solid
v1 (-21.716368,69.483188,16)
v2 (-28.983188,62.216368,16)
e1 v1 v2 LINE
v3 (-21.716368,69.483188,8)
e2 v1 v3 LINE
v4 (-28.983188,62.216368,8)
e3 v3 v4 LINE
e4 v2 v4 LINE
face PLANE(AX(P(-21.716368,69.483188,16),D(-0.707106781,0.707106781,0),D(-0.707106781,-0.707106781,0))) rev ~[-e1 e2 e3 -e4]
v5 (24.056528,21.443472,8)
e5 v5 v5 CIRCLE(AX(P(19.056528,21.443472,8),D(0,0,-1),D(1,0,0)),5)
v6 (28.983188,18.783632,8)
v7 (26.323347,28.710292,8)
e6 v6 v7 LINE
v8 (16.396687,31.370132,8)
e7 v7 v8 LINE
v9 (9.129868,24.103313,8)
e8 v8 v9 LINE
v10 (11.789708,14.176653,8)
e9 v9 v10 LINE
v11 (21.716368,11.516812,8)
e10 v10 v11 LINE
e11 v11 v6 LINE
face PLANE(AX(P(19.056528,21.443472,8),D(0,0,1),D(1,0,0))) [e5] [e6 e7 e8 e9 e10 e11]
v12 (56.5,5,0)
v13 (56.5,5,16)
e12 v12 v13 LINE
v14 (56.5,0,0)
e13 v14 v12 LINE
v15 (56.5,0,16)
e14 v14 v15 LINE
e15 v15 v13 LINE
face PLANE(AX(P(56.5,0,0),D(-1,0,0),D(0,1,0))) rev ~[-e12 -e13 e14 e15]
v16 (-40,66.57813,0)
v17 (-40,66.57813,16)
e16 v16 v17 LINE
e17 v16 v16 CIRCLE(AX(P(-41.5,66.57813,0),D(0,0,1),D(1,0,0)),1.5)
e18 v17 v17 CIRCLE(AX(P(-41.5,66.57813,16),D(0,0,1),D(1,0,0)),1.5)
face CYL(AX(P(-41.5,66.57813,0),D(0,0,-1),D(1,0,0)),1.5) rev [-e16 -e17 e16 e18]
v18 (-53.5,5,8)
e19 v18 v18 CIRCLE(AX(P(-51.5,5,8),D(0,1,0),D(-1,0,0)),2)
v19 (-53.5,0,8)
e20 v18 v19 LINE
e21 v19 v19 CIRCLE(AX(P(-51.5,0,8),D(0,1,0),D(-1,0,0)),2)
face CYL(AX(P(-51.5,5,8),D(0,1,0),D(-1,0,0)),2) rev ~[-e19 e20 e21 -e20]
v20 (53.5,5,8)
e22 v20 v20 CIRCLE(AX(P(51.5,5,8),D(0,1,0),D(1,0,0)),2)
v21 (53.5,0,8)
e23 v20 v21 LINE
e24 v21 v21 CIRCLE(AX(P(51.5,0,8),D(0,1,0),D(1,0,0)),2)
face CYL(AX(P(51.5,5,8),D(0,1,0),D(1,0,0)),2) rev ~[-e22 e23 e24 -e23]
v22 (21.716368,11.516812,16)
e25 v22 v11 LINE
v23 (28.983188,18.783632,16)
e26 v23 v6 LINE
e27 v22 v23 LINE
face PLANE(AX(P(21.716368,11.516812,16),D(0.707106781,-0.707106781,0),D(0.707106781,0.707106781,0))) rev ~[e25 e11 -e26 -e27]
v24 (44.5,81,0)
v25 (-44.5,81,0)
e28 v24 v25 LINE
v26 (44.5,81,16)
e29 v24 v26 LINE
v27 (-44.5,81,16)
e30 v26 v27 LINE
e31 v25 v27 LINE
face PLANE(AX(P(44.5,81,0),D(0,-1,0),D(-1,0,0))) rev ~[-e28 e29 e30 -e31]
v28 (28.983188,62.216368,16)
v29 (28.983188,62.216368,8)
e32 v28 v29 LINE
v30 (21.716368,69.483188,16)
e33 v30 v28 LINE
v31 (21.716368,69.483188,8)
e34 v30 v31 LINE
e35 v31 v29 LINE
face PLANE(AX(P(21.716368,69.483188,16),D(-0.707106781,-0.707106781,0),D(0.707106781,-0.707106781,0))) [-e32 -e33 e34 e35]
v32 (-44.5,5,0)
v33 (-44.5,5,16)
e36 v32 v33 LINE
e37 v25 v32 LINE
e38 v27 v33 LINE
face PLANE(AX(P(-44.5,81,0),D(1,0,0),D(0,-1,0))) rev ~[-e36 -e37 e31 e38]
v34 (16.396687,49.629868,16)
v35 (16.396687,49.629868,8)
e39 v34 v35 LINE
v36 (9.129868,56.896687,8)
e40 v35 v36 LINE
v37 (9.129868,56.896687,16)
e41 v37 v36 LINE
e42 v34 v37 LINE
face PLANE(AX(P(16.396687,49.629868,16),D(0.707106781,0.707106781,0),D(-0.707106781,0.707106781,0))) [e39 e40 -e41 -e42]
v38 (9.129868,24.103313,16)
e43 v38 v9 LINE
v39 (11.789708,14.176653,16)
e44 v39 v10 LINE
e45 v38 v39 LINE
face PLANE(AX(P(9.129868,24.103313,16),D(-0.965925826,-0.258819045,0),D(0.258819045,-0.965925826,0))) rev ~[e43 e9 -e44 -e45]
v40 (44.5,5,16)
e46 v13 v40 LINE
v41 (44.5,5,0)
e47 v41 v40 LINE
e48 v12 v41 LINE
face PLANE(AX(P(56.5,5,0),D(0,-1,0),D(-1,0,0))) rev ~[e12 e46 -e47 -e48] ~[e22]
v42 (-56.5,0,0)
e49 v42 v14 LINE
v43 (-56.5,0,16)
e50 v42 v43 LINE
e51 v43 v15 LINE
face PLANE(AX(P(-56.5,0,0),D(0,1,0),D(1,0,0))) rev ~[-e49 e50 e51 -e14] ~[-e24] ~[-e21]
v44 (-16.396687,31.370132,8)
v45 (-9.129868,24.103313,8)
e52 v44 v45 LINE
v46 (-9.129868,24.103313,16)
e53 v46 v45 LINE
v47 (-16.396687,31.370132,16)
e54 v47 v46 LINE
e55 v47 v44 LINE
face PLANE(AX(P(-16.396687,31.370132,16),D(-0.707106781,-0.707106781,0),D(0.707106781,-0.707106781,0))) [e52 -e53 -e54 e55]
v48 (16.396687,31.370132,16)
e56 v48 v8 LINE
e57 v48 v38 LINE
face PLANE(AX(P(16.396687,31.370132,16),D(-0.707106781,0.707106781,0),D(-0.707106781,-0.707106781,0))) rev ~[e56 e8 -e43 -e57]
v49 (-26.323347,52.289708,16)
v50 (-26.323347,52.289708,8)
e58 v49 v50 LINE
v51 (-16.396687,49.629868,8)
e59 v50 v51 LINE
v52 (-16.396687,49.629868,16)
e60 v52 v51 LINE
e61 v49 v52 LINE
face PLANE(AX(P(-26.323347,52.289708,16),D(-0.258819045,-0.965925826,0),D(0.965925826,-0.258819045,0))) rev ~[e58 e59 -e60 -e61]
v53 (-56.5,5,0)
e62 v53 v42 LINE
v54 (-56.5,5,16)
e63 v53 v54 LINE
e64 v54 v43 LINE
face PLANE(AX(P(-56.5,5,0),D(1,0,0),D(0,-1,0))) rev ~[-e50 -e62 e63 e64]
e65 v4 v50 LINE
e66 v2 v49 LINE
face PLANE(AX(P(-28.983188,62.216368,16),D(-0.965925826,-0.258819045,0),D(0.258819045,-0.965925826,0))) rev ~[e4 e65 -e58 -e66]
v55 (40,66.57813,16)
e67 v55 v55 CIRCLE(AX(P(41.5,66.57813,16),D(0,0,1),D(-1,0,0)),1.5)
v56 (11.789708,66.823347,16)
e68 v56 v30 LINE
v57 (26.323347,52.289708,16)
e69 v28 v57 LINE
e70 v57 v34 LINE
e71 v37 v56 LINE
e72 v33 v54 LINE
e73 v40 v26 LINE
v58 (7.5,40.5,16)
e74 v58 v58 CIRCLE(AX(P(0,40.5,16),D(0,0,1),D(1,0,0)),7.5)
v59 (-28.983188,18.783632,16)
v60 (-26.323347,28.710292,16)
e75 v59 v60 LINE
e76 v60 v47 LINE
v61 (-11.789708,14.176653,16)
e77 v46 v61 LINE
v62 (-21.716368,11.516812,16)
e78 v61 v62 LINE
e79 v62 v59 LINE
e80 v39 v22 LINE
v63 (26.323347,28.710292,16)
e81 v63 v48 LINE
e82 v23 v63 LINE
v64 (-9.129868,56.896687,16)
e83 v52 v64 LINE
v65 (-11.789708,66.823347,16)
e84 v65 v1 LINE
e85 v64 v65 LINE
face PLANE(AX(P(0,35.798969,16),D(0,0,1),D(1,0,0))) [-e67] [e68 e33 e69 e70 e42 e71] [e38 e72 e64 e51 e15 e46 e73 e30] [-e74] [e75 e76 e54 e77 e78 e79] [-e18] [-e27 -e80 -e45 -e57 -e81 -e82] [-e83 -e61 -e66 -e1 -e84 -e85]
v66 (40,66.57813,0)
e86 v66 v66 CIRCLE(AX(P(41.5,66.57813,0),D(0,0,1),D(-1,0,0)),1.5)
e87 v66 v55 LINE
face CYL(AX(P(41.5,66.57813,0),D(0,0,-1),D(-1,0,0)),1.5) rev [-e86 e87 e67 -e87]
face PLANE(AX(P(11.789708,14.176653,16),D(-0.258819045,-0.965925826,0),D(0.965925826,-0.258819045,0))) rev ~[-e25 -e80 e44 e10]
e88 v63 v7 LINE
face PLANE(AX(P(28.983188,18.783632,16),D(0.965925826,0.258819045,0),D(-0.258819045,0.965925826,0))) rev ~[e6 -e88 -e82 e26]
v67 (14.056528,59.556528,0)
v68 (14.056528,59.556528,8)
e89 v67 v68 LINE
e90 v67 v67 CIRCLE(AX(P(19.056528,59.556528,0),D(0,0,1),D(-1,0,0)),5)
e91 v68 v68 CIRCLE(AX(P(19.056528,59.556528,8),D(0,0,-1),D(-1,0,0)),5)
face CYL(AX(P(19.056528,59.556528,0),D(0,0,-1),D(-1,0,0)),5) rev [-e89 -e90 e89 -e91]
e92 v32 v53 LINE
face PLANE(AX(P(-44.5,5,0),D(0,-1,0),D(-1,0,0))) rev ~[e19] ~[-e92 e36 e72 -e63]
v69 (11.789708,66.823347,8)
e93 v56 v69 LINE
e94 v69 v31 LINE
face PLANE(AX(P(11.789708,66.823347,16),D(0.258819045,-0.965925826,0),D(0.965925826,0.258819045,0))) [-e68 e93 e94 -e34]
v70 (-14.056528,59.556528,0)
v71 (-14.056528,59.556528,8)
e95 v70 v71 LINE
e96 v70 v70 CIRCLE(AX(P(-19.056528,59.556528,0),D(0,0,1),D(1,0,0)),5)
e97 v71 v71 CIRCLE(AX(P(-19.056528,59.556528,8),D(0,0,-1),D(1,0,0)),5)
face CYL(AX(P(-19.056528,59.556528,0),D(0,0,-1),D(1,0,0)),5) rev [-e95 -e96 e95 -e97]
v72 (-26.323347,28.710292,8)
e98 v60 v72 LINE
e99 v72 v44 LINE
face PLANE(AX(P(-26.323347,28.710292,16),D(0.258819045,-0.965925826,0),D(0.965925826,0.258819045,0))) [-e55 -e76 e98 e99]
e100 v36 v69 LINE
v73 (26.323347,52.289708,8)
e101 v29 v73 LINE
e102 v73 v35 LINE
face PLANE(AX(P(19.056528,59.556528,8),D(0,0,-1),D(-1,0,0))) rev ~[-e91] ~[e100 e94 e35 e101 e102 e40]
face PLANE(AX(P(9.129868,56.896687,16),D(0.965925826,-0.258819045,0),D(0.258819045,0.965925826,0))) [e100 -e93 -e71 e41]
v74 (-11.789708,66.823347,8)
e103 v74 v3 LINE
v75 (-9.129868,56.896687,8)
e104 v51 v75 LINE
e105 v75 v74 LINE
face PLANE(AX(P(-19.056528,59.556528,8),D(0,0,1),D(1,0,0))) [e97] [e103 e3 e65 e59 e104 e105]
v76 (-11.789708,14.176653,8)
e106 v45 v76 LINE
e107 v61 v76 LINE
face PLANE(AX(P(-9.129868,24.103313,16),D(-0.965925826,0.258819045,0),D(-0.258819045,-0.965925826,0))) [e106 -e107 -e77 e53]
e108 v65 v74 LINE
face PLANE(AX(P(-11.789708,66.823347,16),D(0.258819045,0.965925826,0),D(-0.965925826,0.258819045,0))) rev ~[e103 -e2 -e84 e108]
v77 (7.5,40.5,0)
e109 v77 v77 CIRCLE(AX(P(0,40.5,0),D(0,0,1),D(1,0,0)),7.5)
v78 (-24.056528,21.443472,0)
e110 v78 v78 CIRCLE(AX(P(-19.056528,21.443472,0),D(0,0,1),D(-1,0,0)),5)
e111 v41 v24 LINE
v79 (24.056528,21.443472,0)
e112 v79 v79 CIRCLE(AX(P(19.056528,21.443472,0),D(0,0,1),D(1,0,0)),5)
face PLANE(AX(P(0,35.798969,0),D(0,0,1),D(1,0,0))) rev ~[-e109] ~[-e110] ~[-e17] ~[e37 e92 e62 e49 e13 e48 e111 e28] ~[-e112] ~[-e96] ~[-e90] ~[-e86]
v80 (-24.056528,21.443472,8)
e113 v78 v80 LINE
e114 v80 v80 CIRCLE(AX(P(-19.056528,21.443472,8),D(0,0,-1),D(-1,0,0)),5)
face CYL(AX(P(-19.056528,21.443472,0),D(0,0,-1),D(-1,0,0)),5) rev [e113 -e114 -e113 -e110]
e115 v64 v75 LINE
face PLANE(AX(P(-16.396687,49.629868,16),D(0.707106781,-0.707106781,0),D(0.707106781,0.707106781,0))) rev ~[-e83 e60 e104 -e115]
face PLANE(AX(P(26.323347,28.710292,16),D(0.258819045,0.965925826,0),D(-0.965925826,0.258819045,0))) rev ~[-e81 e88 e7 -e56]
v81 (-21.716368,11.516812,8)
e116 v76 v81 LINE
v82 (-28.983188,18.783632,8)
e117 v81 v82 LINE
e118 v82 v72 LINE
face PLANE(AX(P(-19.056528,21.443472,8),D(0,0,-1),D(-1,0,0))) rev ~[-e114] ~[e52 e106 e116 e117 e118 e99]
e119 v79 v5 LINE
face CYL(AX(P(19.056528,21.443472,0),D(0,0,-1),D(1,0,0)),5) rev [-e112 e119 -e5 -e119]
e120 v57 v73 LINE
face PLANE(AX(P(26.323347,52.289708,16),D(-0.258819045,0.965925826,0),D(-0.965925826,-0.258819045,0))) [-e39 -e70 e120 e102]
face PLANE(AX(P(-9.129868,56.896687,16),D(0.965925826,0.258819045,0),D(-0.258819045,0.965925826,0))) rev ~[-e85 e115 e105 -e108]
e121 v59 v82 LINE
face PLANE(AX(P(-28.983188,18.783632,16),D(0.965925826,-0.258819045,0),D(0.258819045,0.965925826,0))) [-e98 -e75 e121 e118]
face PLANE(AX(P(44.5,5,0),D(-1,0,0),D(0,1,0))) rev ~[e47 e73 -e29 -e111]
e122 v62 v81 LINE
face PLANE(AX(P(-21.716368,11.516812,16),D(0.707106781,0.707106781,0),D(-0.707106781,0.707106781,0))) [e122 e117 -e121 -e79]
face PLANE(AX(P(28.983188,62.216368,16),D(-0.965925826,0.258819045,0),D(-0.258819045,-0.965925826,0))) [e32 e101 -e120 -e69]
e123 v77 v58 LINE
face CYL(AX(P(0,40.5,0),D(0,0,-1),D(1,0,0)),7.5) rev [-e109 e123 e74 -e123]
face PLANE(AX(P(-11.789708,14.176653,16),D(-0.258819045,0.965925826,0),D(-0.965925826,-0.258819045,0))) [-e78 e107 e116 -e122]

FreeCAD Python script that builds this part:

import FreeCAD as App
import Part
import Sketcher
from FreeCAD import Vector
Q = App.Units.Quantity

doc = App.newDocument("Part")
body = doc.addObject("PartDesign::Body", "Body")

# Sketch on XY plane
sketch1 = body.newObject("Sketcher::SketchObject", "Sketch")
sketch1.AttachmentSupport = (doc.getObject("XY_Plane"), [""])
sketch1.MapMode = "FlatFace"
sketch1.addGeometry(Part.LineSegment(Vector(-56.5, 0, 0), Vector(56.5, 0, 0)), False)
sketch1.addGeometry(Part.LineSegment(Vector(56.5, 0, 0), Vector(56.5, 5, 0)), False)
sketch1.addGeometry(Part.LineSegment(Vector(56.5, 5, 0), Vector(44.5, 5, 0)), False)
sketch1.addGeometry(Part.LineSegment(Vector(44.5, 5, 0), Vector(44.5, 81, 0)), False)
sketch1.addGeometry(Part.LineSegment(Vector(44.5, 81, 0), Vector(-44.5, 81, 0)), False)
sketch1.addGeometry(Part.LineSegment(Vector(-44.5, 81, 0), Vector(-44.5, 5, 0)), False)
sketch1.addGeometry(Part.LineSegment(Vector(-44.5, 5, 0), Vector(-56.5, 5, 0)), False)
sketch1.addGeometry(Part.LineSegment(Vector(-56.5, 5, 0), Vector(-56.5, 0, 0)), False)
sketch1.addGeometry(Part.Circle(Vector(-19.056528, 21.443472, 0), Vector(0, 0, 1), 5), False)
sketch1.addGeometry(Part.Circle(Vector(19.056528, 21.443472, 0), Vector(0, 0, 1), 5), False)
sketch1.addGeometry(Part.Circle(Vector(0, 40.5, 0), Vector(0, 0, 1), 7.5), False)
sketch1.addGeometry(Part.Circle(Vector(-41.5, 66.57813, 0), Vector(0, 0, 1), 1.5), False)
sketch1.addGeometry(Part.Circle(Vector(-19.056528, 59.556528, 0), Vector(0, 0, 1), 5), False)
sketch1.addGeometry(Part.Circle(Vector(19.056528, 59.556528, 0), Vector(0, 0, 1), 5), False)
sketch1.addGeometry(Part.Circle(Vector(41.5, 66.57813, 0), Vector(0, 0, 1), 1.5), False)
sketch1.addConstraint(Sketcher.Constraint("Coincident", 0, 2, 1, 1))
sketch1.addConstraint(Sketcher.Constraint("Coincident", 1, 2, 2, 1))
sketch1.addConstraint(Sketcher.Constraint("Coincident", 2, 2, 3, 1))
sketch1.addConstraint(Sketcher.Constraint("Coincident", 3, 2, 4, 1))
sketch1.addConstraint(Sketcher.Constraint("Coincident", 4, 2, 5, 1))
sketch1.addConstraint(Sketcher.Constraint("Coincident", 5, 2, 6, 1))
sketch1.addConstraint(Sketcher.Constraint("Coincident", 6, 2, 7, 1))
sketch1.addConstraint(Sketcher.Constraint("Coincident", 7, 2, 0, 1))
sketch1.addConstraint(Sketcher.Constraint("Horizontal", 0))
sketch1.addConstraint(Sketcher.Constraint("Vertical", 1))
sketch1.addConstraint(Sketcher.Constraint("Horizontal", 2))
sketch1.addConstraint(Sketcher.Constraint("Vertical", 3))
sketch1.addConstraint(Sketcher.Constraint("Horizontal", 4))
sketch1.addConstraint(Sketcher.Constraint("Vertical", 5))
sketch1.addConstraint(Sketcher.Constraint("Horizontal", 6))
sketch1.addConstraint(Sketcher.Constraint("Vertical", 7))
sketch1.addConstraint(Sketcher.Constraint("Equal", 8, 9))
sketch1.addConstraint(Sketcher.Constraint("Equal", 9, 12))
sketch1.addConstraint(Sketcher.Constraint("Equal", 12, 13))
sketch1.addConstraint(Sketcher.Constraint("Equal", 11, 14))
sketch1.addConstraint(Sketcher.Constraint("Symmetric", 0, 2, 7, 2, -1, 1))
sketch1.addConstraint(Sketcher.Constraint("Symmetric", 8, 3, 9, 3, -2))
sketch1.addConstraint(Sketcher.Constraint("Symmetric", 12, 3, 13, 3, -2))
sketch1.addConstraint(Sketcher.Constraint("Symmetric", 11, 3, 14, 3, -2))
sketch1.addConstraint(Sketcher.Constraint("Symmetric", 2, 2, 5, 2, -2))
sketch1.addConstraint(Sketcher.Constraint("PointOnObject", 10, 3, -2))
sketch1.addConstraint(Sketcher.Constraint("Vertical", 8, 3, 12, 3))
sketch1.addConstraint(Sketcher.Constraint("Diameter", 8, Q("10 mm")))
sketch1.addConstraint(Sketcher.Constraint("Diameter", 10, Q("15 mm")))
sketch1.addConstraint(Sketcher.Constraint("Diameter", 11, Q("3 mm")))
sketch1.addConstraint(Sketcher.Constraint("DistanceX", 0, 1, 0, 2, Q("113 mm")))
sketch1.addConstraint(Sketcher.Constraint("DistanceX", 2, 2, 2, 1, Q("12 mm")))
sketch1.addConstraint(Sketcher.Constraint("DistanceY", 1, 1, 1, 2, Q("5 mm")))
sketch1.addConstraint(Sketcher.Constraint("DistanceY", 3, 1, 3, 2, Q("76 mm")))
sketch1.addConstraint(Sketcher.Constraint("DistanceX", 14, 3, 0, 2, Q("15 mm")))
sketch1.addConstraint(Sketcher.Constraint("DistanceY", -1, 1, 10, 3, Q("40.5 mm")))
sketch1.addConstraint(Sketcher.Constraint("DistanceY", -1, 1, 11, 3, Q("66.57813 mm")))
sketch1.addConstraint(Sketcher.Constraint("DistanceY", 8, 3, 11, 3, Q("45.134658 mm")))
sketch1.addConstraint(Sketcher.Constraint("DistanceX", 8, 3, -1, 1, Q("19.056528 mm")))
sketch1.addConstraint(Sketcher.Constraint("DistanceY", -1, 1, 12, 3, Q("59.556528 mm")))
pad1 = body.newObject("PartDesign::Pad", "Pad")
pad1.Profile = sketch1
pad1.Length = 16

# Sketch on XZ plane
sketch2 = body.newObject("Sketcher::SketchObject", "Sketch001")
sketch2.AttachmentSupport = (doc.getObject("XZ_Plane"), [""])
sketch2.MapMode = "FlatFace"
sketch2.AttachmentOffset = App.Placement(Vector(0, 0, -5), App.Rotation())
sketch2.addGeometry(Part.Circle(Vector(-51.5, 8, 0), Vector(0, 0, 1), 2), False)
sketch2.addGeometry(Part.Circle(Vector(51.5, 8, 0), Vector(0, 0, 1), 2), False)
sketch2.addConstraint(Sketcher.Constraint("Equal", 0, 1))
sketch2.addConstraint(Sketcher.Constraint("Symmetric", 0, 3, 1, 3, -2))
sketch2.addConstraint(Sketcher.Constraint("Diameter", 0, Q("4 mm")))
sketch2.addConstraint(Sketcher.Constraint("DistanceY", -1, 1, 0, 3, Q("8 mm")))
sketch2.addConstraint(Sketcher.Constraint("DistanceX", 0, 3, 1, 3, Q("103 mm")))
pocket1 = body.newObject("PartDesign::Pocket", "Pocket")
pocket1.Profile = sketch2
pocket1.Type = "ThroughAll"
pocket1.Reversed = True

# Sketch on XY plane
sketch3 = body.newObject("Sketcher::SketchObject", "Sketch002")
sketch3.AttachmentSupport = (doc.getObject("XY_Plane"), [""])
sketch3.MapMode = "FlatFace"
sketch3.AttachmentOffset = App.Placement(Vector(0, 0, 16), App.Rotation())
sketch3.addGeometry(Part.LineSegment(Vector(-21.716368, 69.483188, 0), Vector(-28.983188, 62.216368, 0)), False)
sketch3.addGeometry(Part.LineSegment(Vector(-28.983188, 62.216368, 0), Vector(-26.323347, 52.289708, 0)), False)
sketch3.addGeometry(Part.LineSegment(Vector(-26.323347, 52.289708, 0), Vector(-16.396687, 49.629868, 0)), False)
sketch3.addGeometry(Part.LineSegment(Vector(-16.396687, 49.629868, 0), Vector(-9.129868, 56.896687, 0)), False)
sketch3.addGeometry(Part.LineSegment(Vector(-9.129868, 56.896687, 0), Vector(-11.789708, 66.823347, 0)), False)
sketch3.addGeometry(Part.LineSegment(Vector(-11.789708, 66.823347, 0), Vector(-21.716368, 69.483188, 0)), False)
sketch3.addGeometry(Part.LineSegment(Vector(-28.983188, 18.783632, 0), Vector(-21.716368, 11.516812, 0)), False)
sketch3.addGeometry(Part.LineSegment(Vector(-21.716368, 11.516812, 0), Vector(-11.789708, 14.176653, 0)), False)
sketch3.addGeometry(Part.LineSegment(Vector(-11.789708, 14.176653, 0), Vector(-9.129868, 24.103313, 0)), False)
sketch3.addGeometry(Part.LineSegment(Vector(-9.129868, 24.103313, 0), Vector(-16.396687, 31.370132, 0)), False)
sketch3.addGeometry(Part.LineSegment(Vector(-16.396687, 31.370132, 0), Vector(-26.323347, 28.710292, 0)), False)
sketch3.addGeometry(Part.LineSegment(Vector(-26.323347, 28.710292, 0), Vector(-28.983188, 18.783632, 0)), False)
sketch3.addGeometry(Part.LineSegment(Vector(16.396687, 49.629868, 0), Vector(26.323347, 52.289708, 0)), False)
sketch3.addGeometry(Part.LineSegment(Vector(26.323347, 52.289708, 0), Vector(28.983188, 62.216368, 0)), False)
sketch3.addGeometry(Part.LineSegment(Vector(28.983188, 62.216368, 0), Vector(21.716368, 69.483188, 0)), False)
sketch3.addGeometry(Part.LineSegment(Vector(21.716368, 69.483188, 0), Vector(11.789708, 66.823347, 0)), False)
sketch3.addGeometry(Part.LineSegment(Vector(11.789708, 66.823347, 0), Vector(9.129868, 56.896687, 0)), False)
sketch3.addGeometry(Part.LineSegment(Vector(9.129868, 56.896687, 0), Vector(16.396687, 49.629868, 0)), False)
sketch3.addGeometry(Part.LineSegment(Vector(16.396687, 31.370132, 0), Vector(9.129868, 24.103313, 0)), False)
sketch3.addGeometry(Part.LineSegment(Vector(9.129868, 24.103313, 0), Vector(11.789708, 14.176653, 0)), False)
sketch3.addGeometry(Part.LineSegment(Vector(11.789708, 14.176653, 0), Vector(21.716368, 11.516812, 0)), False)
sketch3.addGeometry(Part.LineSegment(Vector(21.716368, 11.516812, 0), Vector(28.983188, 18.783632, 0)), False)
sketch3.addGeometry(Part.LineSegment(Vector(28.983188, 18.783632, 0), Vector(26.323347, 28.710292, 0)), False)
sketch3.addGeometry(Part.LineSegment(Vector(26.323347, 28.710292, 0), Vector(16.396687, 31.370132, 0)), False)
sketch3.addConstraint(Sketcher.Constraint("Coincident", 0, 2, 1, 1))
sketch3.addConstraint(Sketcher.Constraint("Coincident", 1, 2, 2, 1))
sketch3.addConstraint(Sketcher.Constraint("Coincident", 2, 2, 3, 1))
sketch3.addConstraint(Sketcher.Constraint("Coincident", 3, 2, 4, 1))
sketch3.addConstraint(Sketcher.Constraint("Coincident", 4, 2, 5, 1))
sketch3.addConstraint(Sketcher.Constraint("Coincident", 5, 2, 0, 1))
sketch3.addConstraint(Sketcher.Constraint("Coincident", 6, 2, 7, 1))
sketch3.addConstraint(Sketcher.Constraint("Coincident", 7, 2, 8, 1))
sketch3.addConstraint(Sketcher.Constraint("Coincident", 8, 2, 9, 1))
sketch3.addConstraint(Sketcher.Constraint("Coincident", 9, 2, 10, 1))
sketch3.addConstraint(Sketcher.Constraint("Coincident", 10, 2, 11, 1))
sketch3.addConstraint(Sketcher.Constraint("Coincident", 11, 2, 6, 1))
sketch3.addConstraint(Sketcher.Constraint("Coincident", 12, 2, 13, 1))
sketch3.addConstraint(Sketcher.Constraint("Coincident", 13, 2, 14, 1))
sketch3.addConstraint(Sketcher.Constraint("Coincident", 14, 2, 15, 1))
sketch3.addConstraint(Sketcher.Constraint("Coincident", 15, 2, 16, 1))
sketch3.addConstraint(Sketcher.Constraint("Coincident", 16, 2, 17, 1))
sketch3.addConstraint(Sketcher.Constraint("Coincident", 17, 2, 12, 1))
sketch3.addConstraint(Sketcher.Constraint("Coincident", 18, 2, 19, 1))
sketch3.addConstraint(Sketcher.Constraint("Coincident", 19, 2, 20, 1))
sketch3.addConstraint(Sketcher.Constraint("Coincident", 20, 2, 21, 1))
sketch3.addConstraint(Sketcher.Constraint("Coincident", 21, 2, 22, 1))
sketch3.addConstraint(Sketcher.Constraint("Coincident", 22, 2, 23, 1))
sketch3.addConstraint(Sketcher.Constraint("Coincident", 23, 2, 18, 1))
sketch3.addConstraint(Sketcher.Constraint("Symmetric", 1, 2, 12, 2, -2))
sketch3.addConstraint(Sketcher.Constraint("Symmetric", 0, 2, 13, 2, -2))
sketch3.addConstraint(Sketcher.Constraint("Symmetric", 5, 2, 14, 2, -2))
sketch3.addConstraint(Sketcher.Constraint("Symmetric", 4, 2, 15, 2, -2))
sketch3.addConstraint(Sketcher.Constraint("Symmetric", 3, 2, 16, 2, -2))
sketch3.addConstraint(Sketcher.Constraint("Symmetric", 2, 2, 17, 2, -2))
sketch3.addConstraint(Sketcher.Constraint("Symmetric", 8, 2, 18, 2, -2))
sketch3.addConstraint(Sketcher.Constraint("Symmetric", 7, 2, 19, 2, -2))
sketch3.addConstraint(Sketcher.Constraint("Symmetric", 6, 2, 20, 2, -2))
sketch3.addConstraint(Sketcher.Constraint("Symmetric", 11, 2, 21, 2, -2))
sketch3.addConstraint(Sketcher.Constraint("Symmetric", 10, 2, 22, 2, -2))
sketch3.addConstraint(Sketcher.Constraint("Symmetric", 9, 2, 23, 2, -2))
sketch3.addConstraint(Sketcher.Constraint("Parallel", 0, 3))
sketch3.addConstraint(Sketcher.Constraint("Parallel", 1, 4))
sketch3.addConstraint(Sketcher.Constraint("Parallel", 2, 5))
sketch3.addConstraint(Sketcher.Constraint("Perpendicular", 3, 6))
sketch3.addConstraint(Sketcher.Constraint("Perpendicular", 4, 7))
sketch3.addConstraint(Sketcher.Constraint("Perpendicular", 5, 8))
sketch3.addConstraint(Sketcher.Constraint("Parallel", 6, 9))
sketch3.addConstraint(Sketcher.Constraint("Parallel", 7, 10))
sketch3.addConstraint(Sketcher.Constraint("Parallel", 8, 11))
sketch3.addConstraint(Sketcher.Constraint("Parallel", 10, 12))
sketch3.addConstraint(Sketcher.Constraint("Parallel", 9, 14))
sketch3.addConstraint(Sketcher.Constraint("Vertical", 5, 2, 6, 2))
sketch3.addConstraint(Sketcher.Constraint("Vertical", 4, 2, 7, 2))
sketch3.addConstraint(Sketcher.Constraint("Vertical", 3, 2, 8, 2))
sketch3.addConstraint(Sketcher.Constraint("Vertical", 2, 2, 9, 2))
sketch3.addConstraint(Sketcher.Constraint("Vertical", 1, 2, 10, 2))
sketch3.addConstraint(Sketcher.Constraint("Equal", 0, 1))
sketch3.addConstraint(Sketcher.Constraint("Equal", 1, 2))
sketch3.addConstraint(Sketcher.Constraint("Equal", 2, 3))
sketch3.addConstraint(Sketcher.Constraint("Angle", 1, Q("-75 deg")))
sketch3.addConstraint(Sketcher.Constraint("DistanceX", 0, 2, 2, 2, Q("12.586501 mm")))
sketch3.addConstraint(Sketcher.Constraint("DistanceY", -1, 1, 0, 2, Q("62.216368 mm")))
sketch3.addConstraint(Sketcher.Constraint("DistanceX", 4, 2, -1, 1, Q("11.789708 mm")))
sketch3.addConstraint(Sketcher.Constraint("DistanceY", -1, 1, 10, 2, Q("28.710292 mm")))
pocket2 = body.newObject("PartDesign::Pocket", "Pocket001")
pocket2.Profile = sketch3
pocket2.Length = 8

doc.recompute()
